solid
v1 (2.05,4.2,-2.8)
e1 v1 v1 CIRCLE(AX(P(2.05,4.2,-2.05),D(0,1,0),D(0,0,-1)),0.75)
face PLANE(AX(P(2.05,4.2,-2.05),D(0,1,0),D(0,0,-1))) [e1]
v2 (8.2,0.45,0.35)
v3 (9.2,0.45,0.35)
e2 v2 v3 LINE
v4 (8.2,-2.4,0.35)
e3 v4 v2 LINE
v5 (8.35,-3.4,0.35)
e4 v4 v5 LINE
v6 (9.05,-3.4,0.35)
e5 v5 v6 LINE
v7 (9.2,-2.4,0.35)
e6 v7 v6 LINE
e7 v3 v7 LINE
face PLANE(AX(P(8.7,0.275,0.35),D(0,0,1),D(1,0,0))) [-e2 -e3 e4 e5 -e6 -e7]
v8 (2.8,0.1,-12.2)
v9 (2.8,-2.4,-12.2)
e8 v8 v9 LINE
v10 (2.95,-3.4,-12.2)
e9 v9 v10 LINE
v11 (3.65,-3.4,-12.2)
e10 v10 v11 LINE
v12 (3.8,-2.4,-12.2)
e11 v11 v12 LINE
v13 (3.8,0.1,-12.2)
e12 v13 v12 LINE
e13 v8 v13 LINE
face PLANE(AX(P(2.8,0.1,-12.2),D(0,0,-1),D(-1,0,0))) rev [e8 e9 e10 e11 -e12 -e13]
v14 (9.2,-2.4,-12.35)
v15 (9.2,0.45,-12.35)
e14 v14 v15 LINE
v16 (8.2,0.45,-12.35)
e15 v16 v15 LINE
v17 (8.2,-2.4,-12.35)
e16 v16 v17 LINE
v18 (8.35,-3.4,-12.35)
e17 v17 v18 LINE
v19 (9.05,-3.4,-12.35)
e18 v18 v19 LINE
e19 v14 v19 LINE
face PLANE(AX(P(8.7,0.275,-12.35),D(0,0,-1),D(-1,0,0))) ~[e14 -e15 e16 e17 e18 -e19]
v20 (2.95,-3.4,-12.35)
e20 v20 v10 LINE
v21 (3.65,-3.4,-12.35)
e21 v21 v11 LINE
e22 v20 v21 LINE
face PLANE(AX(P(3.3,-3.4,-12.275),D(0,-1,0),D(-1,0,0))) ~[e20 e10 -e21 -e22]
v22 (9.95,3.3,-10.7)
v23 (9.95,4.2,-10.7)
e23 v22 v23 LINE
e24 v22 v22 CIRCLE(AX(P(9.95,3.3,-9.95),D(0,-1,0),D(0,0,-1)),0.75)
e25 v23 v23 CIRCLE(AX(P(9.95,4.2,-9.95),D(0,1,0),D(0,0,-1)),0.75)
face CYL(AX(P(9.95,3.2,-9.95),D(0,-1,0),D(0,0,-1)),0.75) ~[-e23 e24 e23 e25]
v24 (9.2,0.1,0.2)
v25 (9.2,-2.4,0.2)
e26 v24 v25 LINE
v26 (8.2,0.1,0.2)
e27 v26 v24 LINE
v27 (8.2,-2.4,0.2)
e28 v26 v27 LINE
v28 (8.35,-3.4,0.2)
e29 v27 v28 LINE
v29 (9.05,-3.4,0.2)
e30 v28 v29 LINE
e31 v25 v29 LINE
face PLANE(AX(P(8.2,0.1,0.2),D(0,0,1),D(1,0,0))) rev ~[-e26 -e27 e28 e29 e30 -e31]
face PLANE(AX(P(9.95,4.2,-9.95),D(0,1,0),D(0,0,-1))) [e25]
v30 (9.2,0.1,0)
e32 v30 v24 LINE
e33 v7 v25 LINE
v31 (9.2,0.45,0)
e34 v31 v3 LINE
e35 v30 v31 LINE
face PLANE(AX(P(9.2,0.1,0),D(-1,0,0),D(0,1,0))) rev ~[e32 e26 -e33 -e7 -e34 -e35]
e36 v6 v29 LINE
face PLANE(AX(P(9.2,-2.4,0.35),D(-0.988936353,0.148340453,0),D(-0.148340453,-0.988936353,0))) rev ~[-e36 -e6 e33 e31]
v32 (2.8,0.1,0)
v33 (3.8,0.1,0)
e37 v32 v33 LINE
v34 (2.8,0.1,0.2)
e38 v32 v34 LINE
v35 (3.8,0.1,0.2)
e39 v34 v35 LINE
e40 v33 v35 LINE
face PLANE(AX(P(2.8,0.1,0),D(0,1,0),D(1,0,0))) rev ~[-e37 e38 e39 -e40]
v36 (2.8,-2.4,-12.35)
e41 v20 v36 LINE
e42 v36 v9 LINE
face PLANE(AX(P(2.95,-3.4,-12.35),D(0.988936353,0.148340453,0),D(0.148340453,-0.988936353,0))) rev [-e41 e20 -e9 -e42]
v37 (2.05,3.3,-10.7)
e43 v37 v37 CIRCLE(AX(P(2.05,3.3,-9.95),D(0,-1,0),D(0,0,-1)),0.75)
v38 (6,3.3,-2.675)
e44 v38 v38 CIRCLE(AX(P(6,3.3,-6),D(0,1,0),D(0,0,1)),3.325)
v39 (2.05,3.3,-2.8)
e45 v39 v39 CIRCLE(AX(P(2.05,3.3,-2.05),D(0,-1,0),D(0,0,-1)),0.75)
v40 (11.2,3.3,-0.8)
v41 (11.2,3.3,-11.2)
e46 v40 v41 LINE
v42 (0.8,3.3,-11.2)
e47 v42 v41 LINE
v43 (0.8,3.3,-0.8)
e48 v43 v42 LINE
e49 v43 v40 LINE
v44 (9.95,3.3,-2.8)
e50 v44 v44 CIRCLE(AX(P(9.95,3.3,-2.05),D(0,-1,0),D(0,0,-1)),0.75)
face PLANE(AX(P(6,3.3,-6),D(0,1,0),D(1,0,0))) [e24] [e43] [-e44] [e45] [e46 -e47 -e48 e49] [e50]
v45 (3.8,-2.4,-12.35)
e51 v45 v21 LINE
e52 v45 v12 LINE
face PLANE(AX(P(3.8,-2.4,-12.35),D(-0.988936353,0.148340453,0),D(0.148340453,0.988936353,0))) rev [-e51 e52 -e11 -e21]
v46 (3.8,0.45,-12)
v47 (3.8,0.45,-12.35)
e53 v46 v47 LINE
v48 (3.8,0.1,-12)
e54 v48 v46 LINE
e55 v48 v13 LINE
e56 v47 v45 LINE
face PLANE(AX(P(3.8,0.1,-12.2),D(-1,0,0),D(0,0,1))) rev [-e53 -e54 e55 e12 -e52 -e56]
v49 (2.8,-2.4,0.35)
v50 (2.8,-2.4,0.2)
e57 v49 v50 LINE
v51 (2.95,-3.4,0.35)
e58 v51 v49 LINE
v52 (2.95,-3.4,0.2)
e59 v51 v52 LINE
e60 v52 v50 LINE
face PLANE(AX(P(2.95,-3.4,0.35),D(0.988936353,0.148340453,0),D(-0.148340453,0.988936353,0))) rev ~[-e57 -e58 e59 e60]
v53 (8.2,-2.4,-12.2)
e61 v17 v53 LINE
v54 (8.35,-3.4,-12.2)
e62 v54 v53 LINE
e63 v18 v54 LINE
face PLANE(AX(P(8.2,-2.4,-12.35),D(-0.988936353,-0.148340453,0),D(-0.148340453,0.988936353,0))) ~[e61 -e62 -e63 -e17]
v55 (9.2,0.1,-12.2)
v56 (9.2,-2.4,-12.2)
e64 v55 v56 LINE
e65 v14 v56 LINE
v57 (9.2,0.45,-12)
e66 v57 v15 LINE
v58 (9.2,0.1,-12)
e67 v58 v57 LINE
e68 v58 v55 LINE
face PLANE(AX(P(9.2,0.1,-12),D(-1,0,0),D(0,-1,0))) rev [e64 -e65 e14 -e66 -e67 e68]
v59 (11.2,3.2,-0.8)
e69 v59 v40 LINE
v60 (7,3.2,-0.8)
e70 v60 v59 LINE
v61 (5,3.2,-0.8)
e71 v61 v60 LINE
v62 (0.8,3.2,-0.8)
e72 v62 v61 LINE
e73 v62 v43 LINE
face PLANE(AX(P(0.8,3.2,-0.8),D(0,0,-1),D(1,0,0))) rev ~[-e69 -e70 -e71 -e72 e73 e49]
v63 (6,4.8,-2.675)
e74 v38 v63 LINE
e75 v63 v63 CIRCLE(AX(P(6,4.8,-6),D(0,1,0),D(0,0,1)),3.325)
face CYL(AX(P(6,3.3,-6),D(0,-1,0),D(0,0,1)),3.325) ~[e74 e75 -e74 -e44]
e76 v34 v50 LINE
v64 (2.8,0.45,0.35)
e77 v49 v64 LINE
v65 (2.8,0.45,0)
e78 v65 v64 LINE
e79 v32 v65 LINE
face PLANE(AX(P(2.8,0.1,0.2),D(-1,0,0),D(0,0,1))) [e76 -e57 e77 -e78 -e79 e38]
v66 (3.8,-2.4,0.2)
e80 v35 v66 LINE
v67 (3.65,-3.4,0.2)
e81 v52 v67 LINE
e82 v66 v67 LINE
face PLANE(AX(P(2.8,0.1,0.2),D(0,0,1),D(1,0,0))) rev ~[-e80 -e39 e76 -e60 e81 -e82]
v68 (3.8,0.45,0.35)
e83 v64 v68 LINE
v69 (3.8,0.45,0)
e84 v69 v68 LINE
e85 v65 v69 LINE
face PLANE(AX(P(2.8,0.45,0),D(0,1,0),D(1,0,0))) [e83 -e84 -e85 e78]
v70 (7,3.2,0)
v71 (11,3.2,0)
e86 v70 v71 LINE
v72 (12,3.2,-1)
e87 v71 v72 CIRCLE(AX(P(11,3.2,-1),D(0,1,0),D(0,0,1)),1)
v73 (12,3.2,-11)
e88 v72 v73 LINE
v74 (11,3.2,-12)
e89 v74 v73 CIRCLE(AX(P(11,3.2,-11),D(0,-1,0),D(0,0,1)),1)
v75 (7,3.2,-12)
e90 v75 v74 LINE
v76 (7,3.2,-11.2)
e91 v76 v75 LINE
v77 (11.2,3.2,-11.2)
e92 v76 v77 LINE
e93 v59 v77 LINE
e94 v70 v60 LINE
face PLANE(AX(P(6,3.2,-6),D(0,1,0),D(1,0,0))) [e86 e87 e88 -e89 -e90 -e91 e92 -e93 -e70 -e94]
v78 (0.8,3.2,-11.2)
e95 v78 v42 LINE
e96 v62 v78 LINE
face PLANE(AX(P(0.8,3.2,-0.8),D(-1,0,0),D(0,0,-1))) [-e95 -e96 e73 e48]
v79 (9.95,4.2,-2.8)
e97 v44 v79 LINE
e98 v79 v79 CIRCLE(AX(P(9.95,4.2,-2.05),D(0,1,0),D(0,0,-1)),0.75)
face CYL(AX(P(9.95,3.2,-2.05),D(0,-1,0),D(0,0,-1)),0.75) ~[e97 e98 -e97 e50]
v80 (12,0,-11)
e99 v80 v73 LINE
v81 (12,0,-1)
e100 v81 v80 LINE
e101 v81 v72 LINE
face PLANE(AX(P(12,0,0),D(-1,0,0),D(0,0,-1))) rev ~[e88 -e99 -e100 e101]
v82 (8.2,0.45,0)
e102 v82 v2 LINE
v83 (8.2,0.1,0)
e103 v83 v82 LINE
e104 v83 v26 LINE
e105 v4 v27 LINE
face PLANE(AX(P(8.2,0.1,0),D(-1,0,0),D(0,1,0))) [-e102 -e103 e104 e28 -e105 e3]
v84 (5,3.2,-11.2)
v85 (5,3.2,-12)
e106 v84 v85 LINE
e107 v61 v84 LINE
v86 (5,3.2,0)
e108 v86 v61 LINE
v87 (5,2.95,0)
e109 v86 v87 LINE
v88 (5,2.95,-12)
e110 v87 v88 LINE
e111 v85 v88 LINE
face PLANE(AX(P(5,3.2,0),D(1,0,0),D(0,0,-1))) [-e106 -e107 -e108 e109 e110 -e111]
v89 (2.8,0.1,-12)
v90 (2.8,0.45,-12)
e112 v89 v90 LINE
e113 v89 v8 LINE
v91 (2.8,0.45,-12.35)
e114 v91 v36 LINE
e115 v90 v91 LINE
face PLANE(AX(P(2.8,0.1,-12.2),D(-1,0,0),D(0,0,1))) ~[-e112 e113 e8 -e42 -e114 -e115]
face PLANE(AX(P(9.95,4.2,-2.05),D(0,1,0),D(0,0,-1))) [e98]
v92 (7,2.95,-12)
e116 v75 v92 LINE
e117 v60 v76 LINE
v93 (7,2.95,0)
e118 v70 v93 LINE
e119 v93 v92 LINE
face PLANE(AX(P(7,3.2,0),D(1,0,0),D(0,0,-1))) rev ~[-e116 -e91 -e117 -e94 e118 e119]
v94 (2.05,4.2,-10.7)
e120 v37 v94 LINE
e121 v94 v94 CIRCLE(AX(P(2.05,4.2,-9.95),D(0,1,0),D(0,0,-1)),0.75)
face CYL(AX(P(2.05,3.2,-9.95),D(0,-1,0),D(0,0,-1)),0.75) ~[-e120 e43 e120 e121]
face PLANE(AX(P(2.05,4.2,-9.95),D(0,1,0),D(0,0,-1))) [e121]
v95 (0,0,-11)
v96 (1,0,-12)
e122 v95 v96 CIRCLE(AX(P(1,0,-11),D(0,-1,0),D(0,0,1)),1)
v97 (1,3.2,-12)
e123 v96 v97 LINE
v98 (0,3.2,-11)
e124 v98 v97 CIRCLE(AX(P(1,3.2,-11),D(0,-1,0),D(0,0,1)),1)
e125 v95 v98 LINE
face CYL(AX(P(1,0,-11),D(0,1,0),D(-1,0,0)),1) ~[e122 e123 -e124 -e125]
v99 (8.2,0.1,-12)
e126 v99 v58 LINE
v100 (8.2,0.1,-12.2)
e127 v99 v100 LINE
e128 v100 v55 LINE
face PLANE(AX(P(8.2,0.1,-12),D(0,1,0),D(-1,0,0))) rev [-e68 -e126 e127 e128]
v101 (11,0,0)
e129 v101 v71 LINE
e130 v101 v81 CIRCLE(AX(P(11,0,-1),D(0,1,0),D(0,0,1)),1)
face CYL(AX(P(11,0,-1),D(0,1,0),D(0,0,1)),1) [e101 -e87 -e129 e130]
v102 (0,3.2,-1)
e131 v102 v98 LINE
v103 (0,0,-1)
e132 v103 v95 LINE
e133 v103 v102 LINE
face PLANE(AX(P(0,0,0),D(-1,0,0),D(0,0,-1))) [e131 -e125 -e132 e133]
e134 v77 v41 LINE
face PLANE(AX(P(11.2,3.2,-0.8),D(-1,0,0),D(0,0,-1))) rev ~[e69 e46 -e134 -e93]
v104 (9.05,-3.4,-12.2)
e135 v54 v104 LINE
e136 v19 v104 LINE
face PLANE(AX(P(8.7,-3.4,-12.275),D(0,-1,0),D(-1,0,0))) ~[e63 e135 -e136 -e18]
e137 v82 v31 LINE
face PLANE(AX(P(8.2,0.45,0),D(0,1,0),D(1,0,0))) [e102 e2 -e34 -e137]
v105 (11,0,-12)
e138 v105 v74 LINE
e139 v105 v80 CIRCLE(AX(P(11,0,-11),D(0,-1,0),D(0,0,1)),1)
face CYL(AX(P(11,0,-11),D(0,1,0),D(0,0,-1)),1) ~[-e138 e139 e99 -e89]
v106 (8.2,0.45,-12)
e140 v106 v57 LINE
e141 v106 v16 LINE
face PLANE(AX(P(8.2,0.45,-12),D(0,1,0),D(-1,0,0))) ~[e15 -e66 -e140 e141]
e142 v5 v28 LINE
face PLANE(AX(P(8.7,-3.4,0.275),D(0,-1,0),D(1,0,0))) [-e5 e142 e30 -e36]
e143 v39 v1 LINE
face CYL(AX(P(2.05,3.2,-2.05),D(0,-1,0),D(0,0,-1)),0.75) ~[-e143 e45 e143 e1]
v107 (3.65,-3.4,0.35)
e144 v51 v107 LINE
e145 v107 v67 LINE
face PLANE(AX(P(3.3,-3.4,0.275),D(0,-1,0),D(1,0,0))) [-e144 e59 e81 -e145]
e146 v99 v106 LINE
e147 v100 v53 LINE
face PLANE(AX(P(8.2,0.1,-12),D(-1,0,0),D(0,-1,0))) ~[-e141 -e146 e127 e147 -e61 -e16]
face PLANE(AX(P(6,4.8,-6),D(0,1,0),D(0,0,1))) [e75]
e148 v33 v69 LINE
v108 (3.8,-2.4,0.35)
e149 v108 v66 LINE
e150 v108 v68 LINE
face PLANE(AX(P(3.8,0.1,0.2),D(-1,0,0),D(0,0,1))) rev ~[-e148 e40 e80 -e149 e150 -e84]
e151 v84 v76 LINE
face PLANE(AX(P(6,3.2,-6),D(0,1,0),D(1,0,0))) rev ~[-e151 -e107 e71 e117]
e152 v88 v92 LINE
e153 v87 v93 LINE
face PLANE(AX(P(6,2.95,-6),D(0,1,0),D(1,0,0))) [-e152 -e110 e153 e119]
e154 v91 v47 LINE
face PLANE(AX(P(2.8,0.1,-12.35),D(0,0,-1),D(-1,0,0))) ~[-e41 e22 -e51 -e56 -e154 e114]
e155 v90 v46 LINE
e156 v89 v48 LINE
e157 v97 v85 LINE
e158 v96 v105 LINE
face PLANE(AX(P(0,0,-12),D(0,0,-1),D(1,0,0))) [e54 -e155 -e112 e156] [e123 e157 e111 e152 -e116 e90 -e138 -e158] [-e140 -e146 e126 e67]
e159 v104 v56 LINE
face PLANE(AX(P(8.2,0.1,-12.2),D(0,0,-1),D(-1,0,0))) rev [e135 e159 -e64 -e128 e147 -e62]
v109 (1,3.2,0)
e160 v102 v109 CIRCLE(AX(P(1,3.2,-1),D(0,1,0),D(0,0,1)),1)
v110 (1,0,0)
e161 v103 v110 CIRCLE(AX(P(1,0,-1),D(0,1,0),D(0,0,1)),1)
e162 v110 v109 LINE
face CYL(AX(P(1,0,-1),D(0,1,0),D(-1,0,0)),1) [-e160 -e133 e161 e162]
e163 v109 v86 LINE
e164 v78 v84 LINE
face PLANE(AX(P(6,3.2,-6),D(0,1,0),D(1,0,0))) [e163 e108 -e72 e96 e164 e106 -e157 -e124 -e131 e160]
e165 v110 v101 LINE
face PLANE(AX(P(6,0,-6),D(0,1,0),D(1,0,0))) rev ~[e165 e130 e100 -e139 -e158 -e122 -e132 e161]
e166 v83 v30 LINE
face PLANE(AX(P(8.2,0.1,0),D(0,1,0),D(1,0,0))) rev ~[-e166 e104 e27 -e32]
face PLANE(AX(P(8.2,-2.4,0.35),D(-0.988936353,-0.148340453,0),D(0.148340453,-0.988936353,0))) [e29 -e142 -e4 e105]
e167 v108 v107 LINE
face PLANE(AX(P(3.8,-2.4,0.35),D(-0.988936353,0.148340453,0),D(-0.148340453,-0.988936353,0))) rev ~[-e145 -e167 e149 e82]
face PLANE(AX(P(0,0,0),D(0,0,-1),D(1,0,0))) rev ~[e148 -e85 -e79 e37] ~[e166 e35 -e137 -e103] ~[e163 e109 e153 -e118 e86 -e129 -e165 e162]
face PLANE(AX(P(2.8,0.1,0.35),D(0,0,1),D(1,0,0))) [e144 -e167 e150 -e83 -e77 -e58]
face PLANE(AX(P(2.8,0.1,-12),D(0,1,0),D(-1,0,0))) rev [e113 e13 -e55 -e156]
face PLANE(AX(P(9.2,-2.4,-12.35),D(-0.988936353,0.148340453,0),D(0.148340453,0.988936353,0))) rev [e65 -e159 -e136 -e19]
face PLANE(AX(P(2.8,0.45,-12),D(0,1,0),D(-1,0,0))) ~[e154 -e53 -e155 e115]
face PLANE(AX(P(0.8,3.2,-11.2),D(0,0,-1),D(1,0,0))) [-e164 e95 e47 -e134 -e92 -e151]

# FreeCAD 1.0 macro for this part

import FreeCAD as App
import Part
import Sketcher
from FreeCAD import Vector


def edges_at(feature, points):
    """Names of the edges that pass closest to the given points."""
    edges = feature.Shape.Edges
    near = lambda p: min(range(len(edges)), key=lambda i: edges[i].distToShape(Part.Vertex(*p))[0])
    return sorted({f"Edge{near(p) + 1}" for p in points})


def add_polygon(sketch, points):
    """Adds a closed chain of lines whose ends are joined by coincident constraints."""
    first, n = sketch.GeometryCount, len(points)
    for a, b in zip(points, points[1:] + points[:1]):
        sketch.addGeometry(Part.LineSegment(App.Vector(*a, 0), App.Vector(*b, 0)), False)
    for i in range(n):
        sketch.addConstraint(Sketcher.Constraint("Coincident", first + i, 2, first + (i + 1) % n, 1))

doc = App.newDocument("Part")
body = doc.addObject("PartDesign::Body", "Body")

# Sketch on XZ plane
sketch1 = body.newObject("Sketcher::SketchObject", "Sketch")
sketch1.AttachmentSupport = (doc.getObject("XZ_Plane"), [""])
sketch1.MapMode = "FlatFace"
add_polygon(sketch1, [(0, -12), (0, 0), (12, 0), (12, -12)])  # lines 0-3
sketch1.addConstraint([
    Sketcher.Constraint("Vertical", 0),
    Sketcher.Constraint("Horizontal", 1),
    Sketcher.Constraint("Vertical", 2),
    Sketcher.Constraint("Horizontal", 3),
    Sketcher.Constraint("Coincident", 0, 2, -1, 1),
    Sketcher.Constraint("Equal", 3, 0),
    Sketcher.Constraint("DistanceX", 1, 1, 1, 2, 12.0),
])
pad1 = body.newObject("PartDesign::Pad", "Pad")
pad1.Profile = sketch1
pad1.Length = 3.2
pad1.Reversed = True

# Sketch on XZ plane
sketch2 = body.newObject("Sketcher::SketchObject", "Sketch001")
sketch2.AttachmentSupport = (doc.getObject("XZ_Plane"), [""])
sketch2.MapMode = "FlatFace"
sketch2.AttachmentOffset = App.Placement(Vector(0, 0, -3.2), App.Rotation())
sketch2.addGeometry([
    Part.Circle(Vector(2, -9.9, 0), Vector(0, 0, 1), 0.8),
    Part.Circle(Vector(9.9, -9.9, 0), Vector(0, 0, 1), 0.8),
    Part.Circle(Vector(2, -2, 0), Vector(0, 0, 1), 0.8),
    Part.Circle(Vector(9.9, -2, 0), Vector(0, 0, 1), 0.8),
], False)
sketch2.addConstraint([
    Sketcher.Constraint("Equal", 0, 1),
    Sketcher.Constraint("Equal", 1, 2),
    Sketcher.Constraint("Equal", 2, 3),
    Sketcher.Constraint("Horizontal", 0, 3, 1, 3),
    Sketcher.Constraint("Horizontal", 2, 3, 3, 3),
    Sketcher.Constraint("Vertical", 0, 3, 2, 3),
    Sketcher.Constraint("Vertical", 1, 3, 3, 3),
    Sketcher.Constraint("Diameter", 0, 1.5),
    Sketcher.Constraint("DistanceX", 0, 3, 1, 3, 7.9),
    Sketcher.Constraint("DistanceY", 0, 3, 2, 3, 7.9),
    Sketcher.Constraint("DistanceX", -1, 1, 0, 3, 2.05),
    Sketcher.Constraint("DistanceY", 0, 3, -1, 1, 9.95),
])
pad2 = body.newObject("PartDesign::Pad", "Pad001")
pad2.Profile = sketch2
pad2.Length = 1
pad2.Reversed = True

# Sketch on XZ plane
sketch3 = body.newObject("Sketcher::SketchObject", "Sketch002")
sketch3.AttachmentSupport = (doc.getObject("XZ_Plane"), [""])
sketch3.MapMode = "FlatFace"
sketch3.AttachmentOffset = App.Placement(Vector(0, 0, -3.2), App.Rotation())
add_polygon(sketch3, [(1, -11), (1, -1), (11, -1), (11, -11)])  # lines 0-3
sketch3.addConstraint([
    Sketcher.Constraint("Vertical", 0),
    Sketcher.Constraint("Horizontal", 1),
    Sketcher.Constraint("Vertical", 2),
    Sketcher.Constraint("Horizontal", 3),
    Sketcher.Constraint("Equal", 3, 0),
    Sketcher.Constraint("DistanceX", 1, 1, 1, 2, 10.4),
    Sketcher.Constraint("DistanceX", -1, 1, 0, 2, 0.8),
    Sketcher.Constraint("DistanceY", 0, 2, -1, 1, 0.8),
])
pad3 = body.newObject("PartDesign::Pad", "Pad002")
pad3.Profile = sketch3
pad3.Length = 0.1
pad3.Reversed = True

# Sketch on XZ plane
sketch4 = body.newObject("Sketcher::SketchObject", "Sketch003")
sketch4.AttachmentSupport = (doc.getObject("XZ_Plane"), [""])
sketch4.MapMode = "FlatFace"
sketch4.AttachmentOffset = App.Placement(Vector(0, 0, -3.3), App.Rotation())
sketch4.addGeometry(Part.Circle(Vector(6, -6, 0), Vector(0, 0, 1), 3.3), False)
sketch4.addConstraint([
    Sketcher.Constraint("Diameter", 0, 6.65),
    Sketcher.Constraint("DistanceX", -1, 1, 0, 3, 6.0),
    Sketcher.Constraint("DistanceY", 0, 3, -1, 1, 6.0),
])
pad4 = body.newObject("PartDesign::Pad", "Pad003")
pad4.Profile = sketch4
pad4.Length = 1.5
pad4.Reversed = True
doc.recompute()

fillet = body.newObject("PartDesign::Fillet", "Fillet")
fillet.Base = (pad4, edges_at(pad4, [
    (0, 1.6, -12),
    (12, 1.6, -12),
    (12, 1.6, 0),
    (0, 1.6, 0),
]))
fillet.Radius = 1

# Sketch on XZ plane
sketch5 = body.newObject("Sketcher::SketchObject", "Sketch004")
sketch5.AttachmentSupport = (doc.getObject("XZ_Plane"), [""])
sketch5.MapMode = "FlatFace"
sketch5.AttachmentOffset = App.Placement(Vector(0, 0, -3.2), App.Rotation())
add_polygon(sketch5, [(5, -12), (5, 0), (7, 0), (7, -12)])  # lines 0-3
sketch5.addConstraint([
    Sketcher.Constraint("Vertical", 0),
    Sketcher.Constraint("Horizontal", 1),
    Sketcher.Constraint("Vertical", 2),
    Sketcher.Constraint("Horizontal", 3),
    Sketcher.Constraint("PointOnObject", 0, 2, -1),
    Sketcher.Constraint("DistanceX", 1, 1, 1, 2, 2.0),
    Sketcher.Constraint("DistanceY", 0, 1, 0, 2, 12.0),
    Sketcher.Constraint("DistanceX", -1, 1, 0, 2, 5.0),
])
pocket1 = body.newObject("PartDesign::Pocket", "Pocket")
pocket1.Profile = sketch5
pocket1.Length = 0.25
pocket1.Reversed = True

# Sketch on XY plane
sketch6 = body.newObject("Sketcher::SketchObject", "Sketch005")
sketch6.AttachmentSupport = (doc.getObject("XY_Plane"), [""])
sketch6.MapMode = "FlatFace"
add_polygon(sketch6, [(2.8, 0.45), (2.8, 0.1), (3.8, 0.1), (3.8, 0.45)])  # lines 0-3
add_polygon(sketch6, [(8.2, 0.45), (8.2, 0.1), (9.2, 0.1), (9.2, 0.45)])  # lines 4-7
sketch6.addConstraint([
    Sketcher.Constraint("Vertical", 0),
    Sketcher.Constraint("Horizontal", 1),
    Sketcher.Constraint("Vertical", 2),
    Sketcher.Constraint("Horizontal", 3),
    Sketcher.Constraint("Vertical", 4),
    Sketcher.Constraint("Horizontal", 5),
    Sketcher.Constraint("Vertical", 6),
    Sketcher.Constraint("Horizontal", 7),
    Sketcher.Constraint("Horizontal", 1, 2, 4, 2),
    Sketcher.Constraint("Horizontal", 3, 2, 6, 2),
    Sketcher.Constraint("Equal", 3, 5),
    Sketcher.Constraint("DistanceX", 1, 1, 1, 2, 1.0),
    Sketcher.Constraint("DistanceY", 0, 2, 0, 1, 0.35),
    Sketcher.Constraint("DistanceX", -1, 1, 0, 2, 2.8),
    Sketcher.Constraint("DistanceY", -1, 1, 0, 2, 0.1),
    Sketcher.Constraint("DistanceX", -1, 1, 4, 2, 8.2),
])
pad5 = body.newObject("PartDesign::Pad", "Pad004")
pad5.Profile = sketch6
pad5.Length = 0.35

# Sketch on XZ plane
sketch7 = body.newObject("Sketcher::SketchObject", "Sketch006")
sketch7.AttachmentSupport = (doc.getObject("XZ_Plane"), [""])
sketch7.MapMode = "FlatFace"
sketch7.AttachmentOffset = App.Placement(Vector(0, 0, -0.1), App.Rotation())
add_polygon(sketch7, [(2.8, 0.35), (2.8, 0.2), (3.8, 0.2), (3.8, 0.35)])  # lines 0-3
add_polygon(sketch7, [(8.2, 0.35), (8.2, 0.2), (9.2, 0.2), (9.2, 0.35)])  # lines 4-7
sketch7.addConstraint([
    Sketcher.Constraint("Vertical", 0),
    Sketcher.Constraint("Horizontal", 1),
    Sketcher.Constraint("Vertical", 2),
    Sketcher.Constraint("Horizontal", 3),
    Sketcher.Constraint("Vertical", 4),
    Sketcher.Constraint("Horizontal", 5),
    Sketcher.Constraint("Vertical", 6),
    Sketcher.Constraint("Horizontal", 7),
    Sketcher.Constraint("Horizontal", 1, 2, 4, 2),
    Sketcher.Constraint("Horizontal", 3, 2, 6, 2),
    Sketcher.Constraint("Equal", 3, 5),
    Sketcher.Constraint("DistanceX", 1, 1, 1, 2, 1.0),
    Sketcher.Constraint("DistanceY", 0, 2, 0, 1, 0.15),
    Sketcher.Constraint("DistanceX", -1, 1, 0, 2, 2.8),
    Sketcher.Constraint("DistanceY", -1, 1, 0, 2, 0.2),
    Sketcher.Constraint("DistanceX", -1, 1, 4, 2, 8.2),
])
pad6 = body.newObject("PartDesign::Pad", "Pad005")
pad6.Profile = sketch7
pad6.Length = 3.5

# Sketch on XY plane
sketch8 = body.newObject("Sketcher::SketchObject", "Sketch007")
sketch8.AttachmentSupport = (doc.getObject("XY_Plane"), [""])
sketch8.MapMode = "FlatFace"
sketch8.AttachmentOffset = App.Placement(Vector(0, 0, 0.35), App.Rotation())
add_polygon(sketch8, [(2.95, -3.4), (2.8, -2.4), (2.8, -3.4)])  # lines 0-2
add_polygon(sketch8, [(3.8, -2.4), (3.65, -3.4), (3.8, -3.4)])  # lines 3-5
add_polygon(sketch8, [(8.35, -3.4), (8.2, -2.4), (8.2, -3.4)])  # lines 6-8
add_polygon(sketch8, [(9.2, -2.4), (9.05, -3.4), (9.2, -3.4)])  # lines 9-11
sketch8.addConstraint([
    Sketcher.Constraint("Vertical", 1),
    Sketcher.Constraint("Horizontal", 2),
    Sketcher.Constraint("Horizontal", 4),
    Sketcher.Constraint("Vertical", 5),
    Sketcher.Constraint("Vertical", 7),
    Sketcher.Constraint("Horizontal", 8),
    Sketcher.Constraint("Horizontal", 10),
    Sketcher.Constraint("Vertical", 11),
    Sketcher.Constraint("Parallel", 0, 6),
    Sketcher.Constraint("Parallel", 3, 9),
    Sketcher.Constraint("Horizontal", 2, 2, 3, 2),
    Sketcher.Constraint("Horizontal", 0, 2, 5, 2),
    Sketcher.Constraint("Horizontal", 5, 2, 6, 2),
    Sketcher.Constraint("Horizontal", 4, 2, 7, 2),
    Sketcher.Constraint("Horizontal", 8, 2, 9, 2),
    Sketcher.Constraint("Horizontal", 6, 2, 11, 2),
    Sketcher.Constraint("Equal", 2, 4),
    Sketcher.Constraint("DistanceY", 1, 2, 1, 1, 1.0),
    Sketcher.Constraint("DistanceX", 1, 2, 4, 2, 1.0),
    Sketcher.Constraint("DistanceX", 7, 2, 10, 2, 1.0),
    Sketcher.Constraint("DistanceX", 2, 1, 2, 2, 0.15),
    Sketcher.Constraint("DistanceX", -1, 1, 0, 2, 2.8),
    Sketcher.Constraint("DistanceY", 0, 2, -1, 1, 2.4),
    Sketcher.Constraint("DistanceX", -1, 1, 6, 2, 8.2),
])
pocket2 = body.newObject("PartDesign::Pocket", "Pocket001")
pocket2.Profile = sketch8
pocket2.Type = "ThroughAll"
doc.recompute()

datumplane = body.newObject("PartDesign::Plane", "DatumPlane")
datumplane.AttachmentSupport = (doc.getObject("XY_Plane"), [""])
datumplane.MapMode = "FlatFace"
datumplane.AttachmentOffset = App.Placement(Vector(0, 0, -6), App.Rotation())
mirrored = body.newObject("PartDesign::Mirrored", "Mirrored")
mirrored.Originals = [pad5, pad6, pocket2]
mirrored.MirrorPlane = (datumplane, [""])
body.Tip = mirrored

doc.recompute()
